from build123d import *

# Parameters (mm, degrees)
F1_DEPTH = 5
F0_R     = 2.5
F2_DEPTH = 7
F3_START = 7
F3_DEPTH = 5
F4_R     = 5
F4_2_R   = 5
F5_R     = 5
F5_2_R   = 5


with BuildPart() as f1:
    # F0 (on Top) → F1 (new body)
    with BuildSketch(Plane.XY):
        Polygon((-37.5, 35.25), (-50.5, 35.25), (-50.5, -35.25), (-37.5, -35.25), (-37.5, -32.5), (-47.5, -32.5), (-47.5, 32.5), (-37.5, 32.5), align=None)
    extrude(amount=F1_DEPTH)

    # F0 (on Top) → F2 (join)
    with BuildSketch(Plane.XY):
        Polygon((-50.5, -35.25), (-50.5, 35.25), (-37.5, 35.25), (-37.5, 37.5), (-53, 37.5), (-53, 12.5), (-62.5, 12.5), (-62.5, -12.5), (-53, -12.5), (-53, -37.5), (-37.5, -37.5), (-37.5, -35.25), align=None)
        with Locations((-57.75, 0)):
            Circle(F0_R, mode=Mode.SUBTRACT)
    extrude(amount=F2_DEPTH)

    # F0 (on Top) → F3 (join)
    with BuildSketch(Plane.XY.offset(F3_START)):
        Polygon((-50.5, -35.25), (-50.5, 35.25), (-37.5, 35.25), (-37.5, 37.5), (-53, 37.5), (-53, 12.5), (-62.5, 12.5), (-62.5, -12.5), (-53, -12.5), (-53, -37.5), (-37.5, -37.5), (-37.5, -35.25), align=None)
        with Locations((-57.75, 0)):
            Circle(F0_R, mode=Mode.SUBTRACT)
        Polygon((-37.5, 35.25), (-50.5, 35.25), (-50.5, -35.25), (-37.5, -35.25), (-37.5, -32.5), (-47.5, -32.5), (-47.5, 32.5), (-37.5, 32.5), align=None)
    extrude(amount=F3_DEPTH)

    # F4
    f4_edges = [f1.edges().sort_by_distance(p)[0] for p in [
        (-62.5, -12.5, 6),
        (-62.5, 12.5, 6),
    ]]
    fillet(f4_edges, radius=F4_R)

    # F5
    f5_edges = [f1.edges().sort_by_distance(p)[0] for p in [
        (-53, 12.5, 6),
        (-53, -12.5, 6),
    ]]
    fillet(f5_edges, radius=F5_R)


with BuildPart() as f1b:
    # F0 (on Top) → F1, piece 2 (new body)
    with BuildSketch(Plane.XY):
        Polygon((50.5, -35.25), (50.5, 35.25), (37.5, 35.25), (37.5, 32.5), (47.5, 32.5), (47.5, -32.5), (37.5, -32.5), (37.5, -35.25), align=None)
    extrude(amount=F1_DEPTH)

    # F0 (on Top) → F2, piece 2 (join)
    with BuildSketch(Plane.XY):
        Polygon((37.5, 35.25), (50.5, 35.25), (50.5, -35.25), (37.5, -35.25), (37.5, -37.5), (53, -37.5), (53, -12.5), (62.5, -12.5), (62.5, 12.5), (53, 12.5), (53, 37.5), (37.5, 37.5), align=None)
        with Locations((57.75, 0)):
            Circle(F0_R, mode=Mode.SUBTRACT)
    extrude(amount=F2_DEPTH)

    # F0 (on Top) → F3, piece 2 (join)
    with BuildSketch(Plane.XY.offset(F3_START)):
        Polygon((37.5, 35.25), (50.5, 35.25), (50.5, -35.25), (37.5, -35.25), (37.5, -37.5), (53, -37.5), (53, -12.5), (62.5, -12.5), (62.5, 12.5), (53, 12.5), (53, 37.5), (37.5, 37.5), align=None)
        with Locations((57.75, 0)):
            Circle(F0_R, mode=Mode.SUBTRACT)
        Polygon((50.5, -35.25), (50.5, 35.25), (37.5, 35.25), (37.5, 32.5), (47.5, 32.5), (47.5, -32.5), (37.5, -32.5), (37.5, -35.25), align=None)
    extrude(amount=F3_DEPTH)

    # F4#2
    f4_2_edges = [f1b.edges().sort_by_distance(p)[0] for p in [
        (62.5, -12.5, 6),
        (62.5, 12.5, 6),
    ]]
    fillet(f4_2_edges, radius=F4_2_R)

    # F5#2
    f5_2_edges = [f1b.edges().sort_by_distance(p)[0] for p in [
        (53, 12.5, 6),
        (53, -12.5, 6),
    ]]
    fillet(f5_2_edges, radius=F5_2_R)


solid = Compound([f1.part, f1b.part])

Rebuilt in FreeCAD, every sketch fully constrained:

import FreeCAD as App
import Part
import Sketcher

V = App.Vector
Q = App.Units.Quantity


def edges_at(feature, points):
    """Names of the edges that pass closest to the given points."""
    edges = feature.Shape.Edges
    near = lambda p: min(range(len(edges)), key=lambda i: edges[i].distToShape(Part.Vertex(*p))[0])
    return sorted({f"Edge{near(p) + 1}" for p in points})


def add_polygon(sketch, points):
    """Adds a closed chain of lines whose ends are joined by coincident constraints."""
    first, n = sketch.GeometryCount, len(points)
    for a, b in zip(points, points[1:] + points[:1]):
        sketch.addGeometry(Part.LineSegment(App.Vector(*a, 0), App.Vector(*b, 0)), False)
    for i in range(n):
        sketch.addConstraint(Sketcher.Constraint("Coincident", first + i, 2, first + (i + 1) % n, 1))

doc = App.newDocument("Part")
body = doc.addObject("PartDesign::Body", "Body")

# Sketch on XY plane
sketch1 = body.newObject("Sketcher::SketchObject", "Sketch")
sketch1.AttachmentSupport = (doc.getObject("XY_Plane"), [""])
sketch1.MapMode = "FlatFace"
add_polygon(sketch1, [(-37.5, 35.2), (-50.5, 35.2), (-50.5, -35.2), (-37.5, -35.2), (-37.5, -32.5), (-47.5, -32.5), (-47.5, 32.5), (-37.5, 32.5)])  # lines 0-7
sketch1.addConstraint(Sketcher.Constraint("Horizontal", 0))
sketch1.addConstraint(Sketcher.Constraint("Vertical", 1))
sketch1.addConstraint(Sketcher.Constraint("Horizontal", 2))
sketch1.addConstraint(Sketcher.Constraint("Vertical", 3))
sketch1.addConstraint(Sketcher.Constraint("Horizontal", 4))
sketch1.addConstraint(Sketcher.Constraint("Vertical", 5))
sketch1.addConstraint(Sketcher.Constraint("Horizontal", 6))
sketch1.addConstraint(Sketcher.Constraint("Vertical", 7))
sketch1.addConstraint(Sketcher.Constraint("Symmetric", 3, 2, 6, 2, -1))
sketch1.addConstraint(Sketcher.Constraint("Equal", 3, 7))
sketch1.addConstraint(Sketcher.Constraint("DistanceX", 0, 2, 0, 1, Q("13 mm")))
sketch1.addConstraint(Sketcher.Constraint("DistanceX", 4, 2, 4, 1, Q("10 mm")))
sketch1.addConstraint(Sketcher.Constraint("DistanceY", 5, 1, 5, 2, Q("65 mm")))
sketch1.addConstraint(Sketcher.Constraint("DistanceY", 1, 2, 1, 1, Q("70.5 mm")))
sketch1.addConstraint(Sketcher.Constraint("DistanceX", 0, 2, -1, 1, Q("50.5 mm")))
pad1 = body.newObject("PartDesign::Pad", "Pad")
pad1.Profile = sketch1
pad1.Length = 5

# Sketch on XY plane
sketch2 = body.newObject("Sketcher::SketchObject", "Sketch001")
sketch2.AttachmentSupport = (doc.getObject("XY_Plane"), [""])
sketch2.MapMode = "FlatFace"
add_polygon(sketch2, [(-50.5, -35.2), (-50.5, 35.2), (-37.5, 35.2), (-37.5, 37.5), (-53, 37.5), (-53, 12.5), (-62.5, 12.5), (-62.5, -12.5), (-53, -12.5), (-53, -37.5), (-37.5, -37.5), (-37.5, -35.2)])  # lines 0-11
sketch2.addGeometry(Part.Circle(V(-57.8, 0, 0), V(0, 0, 1), 2.5), False)  # 12
sketch2.addConstraint(Sketcher.Constraint("Vertical", 0))
sketch2.addConstraint(Sketcher.Constraint("Horizontal", 1))
sketch2.addConstraint(Sketcher.Constraint("Vertical", 2))
sketch2.addConstraint(Sketcher.Constraint("Horizontal", 3))
sketch2.addConstraint(Sketcher.Constraint("Vertical", 4))
sketch2.addConstraint(Sketcher.Constraint("Horizontal", 5))
sketch2.addConstraint(Sketcher.Constraint("Vertical", 6))
sketch2.addConstraint(Sketcher.Constraint("Horizontal", 7))
sketch2.addConstraint(Sketcher.Constraint("Vertical", 8))
sketch2.addConstraint(Sketcher.Constraint("Horizontal", 9))
sketch2.addConstraint(Sketcher.Constraint("Vertical", 10))
sketch2.addConstraint(Sketcher.Constraint("Horizontal", 11))
sketch2.addConstraint(Sketcher.Constraint("Symmetric", 4, 2, 7, 2, -1))
sketch2.addConstraint(Sketcher.Constraint("Symmetric", 2, 2, 9, 2, -1))
sketch2.addConstraint(Sketcher.Constraint("PointOnObject", 12, 3, -1))
sketch2.addConstraint(Sketcher.Constraint("Equal", 4, 6))
sketch2.addConstraint(Sketcher.Constraint("Equal", 2, 10))
sketch2.addConstraint(Sketcher.Constraint("Diameter", 12, Q("5 mm")))
sketch2.addConstraint(Sketcher.Constraint("DistanceX", 1, 1, 1, 2, Q("13 mm")))
sketch2.addConstraint(Sketcher.Constraint("DistanceY", 4, 2, 4, 1, Q("25 mm")))
sketch2.addConstraint(Sketcher.Constraint("DistanceX", 3, 2, 3, 1, Q("15.5 mm")))
sketch2.addConstraint(Sketcher.Constraint("DistanceX", 5, 2, 5, 1, Q("9.5 mm")))
sketch2.addConstraint(Sketcher.Constraint("DistanceY", 0, 1, 0, 2, Q("70.5 mm")))
sketch2.addConstraint(Sketcher.Constraint("DistanceX", 3, 2, -1, 1, Q("53 mm")))
sketch2.addConstraint(Sketcher.Constraint("DistanceX", 12, 3, -1, 1, Q("57.75 mm")))
pad2 = body.newObject("PartDesign::Pad", "Pad001")
pad2.Profile = sketch2
pad2.Length = 7

# Sketch on XY plane
sketch3 = body.newObject("Sketcher::SketchObject", "Sketch002")
sketch3.AttachmentSupport = (doc.getObject("XY_Plane"), [""])
sketch3.MapMode = "FlatFace"
sketch3.AttachmentOffset = App.Placement(V(0, 0, 7), App.Rotation())
add_polygon(sketch3, [(-37.5, -37.5), (-37.5, -32.5), (-47.5, -32.5), (-47.5, 32.5), (-37.5, 32.5), (-37.5, 37.5), (-53, 37.5), (-53, 12.5), (-62.5, 12.5), (-62.5, -12.5), (-53, -12.5), (-53, -37.5)])  # lines 0-11
sketch3.addGeometry(Part.Circle(V(-57.8, 0, 0), V(0, 0, 1), 2.5), False)  # 12
sketch3.addConstraint(Sketcher.Constraint("Vertical", 0))
sketch3.addConstraint(Sketcher.Constraint("Horizontal", 1))
sketch3.addConstraint(Sketcher.Constraint("Vertical", 2))
sketch3.addConstraint(Sketcher.Constraint("Horizontal", 3))
sketch3.addConstraint(Sketcher.Constraint("Vertical", 4))
sketch3.addConstraint(Sketcher.Constraint("Horizontal", 5))
sketch3.addConstraint(Sketcher.Constraint("Vertical", 6))
sketch3.addConstraint(Sketcher.Constraint("Horizontal", 7))
sketch3.addConstraint(Sketcher.Constraint("Vertical", 8))
sketch3.addConstraint(Sketcher.Constraint("Horizontal", 9))
sketch3.addConstraint(Sketcher.Constraint("Vertical", 10))
sketch3.addConstraint(Sketcher.Constraint("Horizontal", 11))
sketch3.addConstraint(Sketcher.Constraint("Symmetric", 0, 2, 3, 2, -1))
sketch3.addConstraint(Sketcher.Constraint("Symmetric", 6, 2, 9, 2, -1))
sketch3.addConstraint(Sketcher.Constraint("PointOnObject", 12, 3, -1))
sketch3.addConstraint(Sketcher.Constraint("Equal", 0, 4))
sketch3.addConstraint(Sketcher.Constraint("Equal", 6, 8))
sketch3.addConstraint(Sketcher.Constraint("Diameter", 12, Q("5 mm")))
sketch3.addConstraint(Sketcher.Constraint("DistanceX", 1, 2, 1, 1, Q("10 mm")))
sketch3.addConstraint(Sketcher.Constraint("DistanceY", 0, 1, 0, 2, Q("5 mm")))
sketch3.addConstraint(Sketcher.Constraint("DistanceY", 2, 1, 2, 2, Q("65 mm")))
sketch3.addConstraint(Sketcher.Constraint("DistanceX", 5, 2, 5, 1, Q("15.5 mm")))
sketch3.addConstraint(Sketcher.Constraint("DistanceX", 7, 2, 7, 1, Q("9.5 mm")))
sketch3.addConstraint(Sketcher.Constraint("DistanceX", 5, 2, -1, 1, Q("53 mm")))
sketch3.addConstraint(Sketcher.Constraint("DistanceX", 12, 3, -1, 1, Q("57.75 mm")))
pad3 = body.newObject("PartDesign::Pad", "Pad002")
pad3.Profile = sketch3
pad3.Length = 5
doc.recompute()

fillet = body.newObject("PartDesign::Fillet", "Fillet")
fillet.Base = (pad3, edges_at(pad3, [(-62.5, -12.5, 6), (-62.5, 12.5, 6)]))
fillet.Radius = 5
doc.recompute()

fillet2 = body.newObject("PartDesign::Fillet", "Fillet001")
fillet2.Base = (fillet, edges_at(fillet, [(-53, 12.5, 6), (-53, -12.5, 6)]))
fillet2.Radius = 5
body2 = doc.addObject("PartDesign::Body", "Body001")

# Sketch on XY plane
sketch4 = body2.newObject("Sketcher::SketchObject", "Sketch003")
sketch4.AttachmentSupport = (doc.getObject("XY_Plane001"), [""])
sketch4.MapMode = "FlatFace"
add_polygon(sketch4, [(50.5, -35.2), (50.5, 35.2), (37.5, 35.2), (37.5, 32.5), (47.5, 32.5), (47.5, -32.5), (37.5, -32.5), (37.5, -35.2)])  # lines 0-7
sketch4.addConstraint(Sketcher.Constraint("Vertical", 0))
sketch4.addConstraint(Sketcher.Constraint("Horizontal", 1))
sketch4.addConstraint(Sketcher.Constraint("Vertical", 2))
sketch4.addConstraint(Sketcher.Constraint("Horizontal", 3))
sketch4.addConstraint(Sketcher.Constraint("Vertical", 4))
sketch4.addConstraint(Sketcher.Constraint("Horizontal", 5))
sketch4.addConstraint(Sketcher.Constraint("Vertical", 6))
sketch4.addConstraint(Sketcher.Constraint("Horizontal", 7))
sketch4.addConstraint(Sketcher.Constraint("Symmetric", 2, 2, 5, 2, -1))
sketch4.addConstraint(Sketcher.Constraint("Equal", 2, 6))
sketch4.addConstraint(Sketcher.Constraint("DistanceX", 1, 2, 1, 1, Q("13 mm")))
sketch4.addConstraint(Sketcher.Constraint("DistanceX", 3, 1, 3, 2, Q("10 mm")))
sketch4.addConstraint(Sketcher.Constraint("DistanceY", 4, 2, 4, 1, Q("65 mm")))
sketch4.addConstraint(Sketcher.Constraint("DistanceY", 0, 1, 0, 2, Q("70.5 mm")))
sketch4.addConstraint(Sketcher.Constraint("DistanceX", -1, 1, 0, 2, Q("50.5 mm")))
pad4 = body2.newObject("PartDesign::Pad", "Pad003")
pad4.Profile = sketch4
pad4.Length = 5

# Sketch on XY plane
sketch5 = body2.newObject("Sketcher::SketchObject", "Sketch004")
sketch5.AttachmentSupport = (doc.getObject("XY_Plane001"), [""])
sketch5.MapMode = "FlatFace"
add_polygon(sketch5, [(37.5, 35.2), (50.5, 35.2), (50.5, -35.2), (37.5, -35.2), (37.5, -37.5), (53, -37.5), (53, -12.5), (62.5, -12.5), (62.5, 12.5), (53, 12.5), (53, 37.5), (37.5, 37.5)])  # lines 0-11
sketch5.addGeometry(Part.Circle(V(57.8, 0, 0), V(0, 0, 1), 2.5), False)  # 12
sketch5.addConstraint(Sketcher.Constraint("Horizontal", 0))
sketch5.addConstraint(Sketcher.Constraint("Vertical", 1))
sketch5.addConstraint(Sketcher.Constraint("Horizontal", 2))
sketch5.addConstraint(Sketcher.Constraint("Vertical", 3))
sketch5.addConstraint(Sketcher.Constraint("Horizontal", 4))
sketch5.addConstraint(Sketcher.Constraint("Vertical", 5))
sketch5.addConstraint(Sketcher.Constraint("Horizontal", 6))
sketch5.addConstraint(Sketcher.Constraint("Vertical", 7))
sketch5.addConstraint(Sketcher.Constraint("Horizontal", 8))
sketch5.addConstraint(Sketcher.Constraint("Vertical", 9))
sketch5.addConstraint(Sketcher.Constraint("Horizontal", 10))
sketch5.addConstraint(Sketcher.Constraint("Vertical", 11))
sketch5.addConstraint(Sketcher.Constraint("Symmetric", 5, 2, 8, 2, -1))
sketch5.addConstraint(Sketcher.Constraint("Symmetric", 3, 2, 10, 2, -1))
sketch5.addConstraint(Sketcher.Constraint("PointOnObject", 12, 3, -1))
sketch5.addConstraint(Sketcher.Constraint("Equal", 5, 7))
sketch5.addConstraint(Sketcher.Constraint("Equal", 3, 11))
sketch5.addConstraint(Sketcher.Constraint("Diameter", 12, Q("5 mm")))
sketch5.addConstraint(Sketcher.Constraint("DistanceX", 0, 1, 0, 2, Q("13 mm")))
sketch5.addConstraint(Sketcher.Constraint("DistanceY", 5, 1, 5, 2, Q("25 mm")))
sketch5.addConstraint(Sketcher.Constraint("DistanceX", 4, 1, 4, 2, Q("15.5 mm")))
sketch5.addConstraint(Sketcher.Constraint("DistanceX", 6, 1, 6, 2, Q("9.5 mm")))
sketch5.addConstraint(Sketcher.Constraint("DistanceY", 1, 2, 1, 1, Q("70.5 mm")))
sketch5.addConstraint(Sketcher.Constraint("DistanceX", -1, 1, 4, 2, Q("53 mm")))
sketch5.addConstraint(Sketcher.Constraint("DistanceX", -1, 1, 12, 3, Q("57.75 mm")))
pad5 = body2.newObject("PartDesign::Pad", "Pad004")
pad5.Profile = sketch5
pad5.Length = 7

# Sketch on XY plane
sketch6 = body2.newObject("Sketcher::SketchObject", "Sketch005")
sketch6.AttachmentSupport = (doc.getObject("XY_Plane001"), [""])
sketch6.MapMode = "FlatFace"
sketch6.AttachmentOffset = App.Placement(V(0, 0, 7), App.Rotation())
add_polygon(sketch6, [(37.5, 37.5), (37.5, 32.5), (47.5, 32.5), (47.5, -32.5), (37.5, -32.5), (37.5, -37.5), (53, -37.5), (53, -12.5), (62.5, -12.5), (62.5, 12.5), (53, 12.5), (53, 37.5)])  # lines 0-11
sketch6.addGeometry(Part.Circle(V(57.8, 0, 0), V(0, 0, 1), 2.5), False)  # 12
sketch6.addConstraint(Sketcher.Constraint("Vertical", 0))
sketch6.addConstraint(Sketcher.Constraint("Horizontal", 1))
sketch6.addConstraint(Sketcher.Constraint("Vertical", 2))
sketch6.addConstraint(Sketcher.Constraint("Horizontal", 3))
sketch6.addConstraint(Sketcher.Constraint("Vertical", 4))
sketch6.addConstraint(Sketcher.Constraint("Horizontal", 5))
sketch6.addConstraint(Sketcher.Constraint("Vertical", 6))
sketch6.addConstraint(Sketcher.Constraint("Horizontal", 7))
sketch6.addConstraint(Sketcher.Constraint("Vertical", 8))
sketch6.addConstraint(Sketcher.Constraint("Horizontal", 9))
sketch6.addConstraint(Sketcher.Constraint("Vertical", 10))
sketch6.addConstraint(Sketcher.Constraint("Horizontal", 11))
sketch6.addConstraint(Sketcher.Constraint("Symmetric", 0, 2, 3, 2, -1))
sketch6.addConstraint(Sketcher.Constraint("Symmetric", 6, 2, 9, 2, -1))
sketch6.addConstraint(Sketcher.Constraint("PointOnObject", 12, 3, -1))
sketch6.addConstraint(Sketcher.Constraint("Equal", 0, 4))
sketch6.addConstraint(Sketcher.Constraint("Equal", 6, 8))
sketch6.addConstraint(Sketcher.Constraint("Diameter", 12, Q("5 mm")))
sketch6.addConstraint(Sketcher.Constraint("DistanceX", 1, 1, 1, 2, Q("10 mm")))
sketch6.addConstraint(Sketcher.Constraint("DistanceY", 0, 2, 0, 1, Q("5 mm")))
sketch6.addConstraint(Sketcher.Constraint("DistanceY", 2, 2, 2, 1, Q("65 mm")))
sketch6.addConstraint(Sketcher.Constraint("DistanceX", 5, 1, 5, 2, Q("15.5 mm")))
sketch6.addConstraint(Sketcher.Constraint("DistanceX", 7, 1, 7, 2, Q("9.5 mm")))
sketch6.addConstraint(Sketcher.Constraint("DistanceX", -1, 1, 5, 2, Q("53 mm")))
sketch6.addConstraint(Sketcher.Constraint("DistanceX", -1, 1, 12, 3, Q("57.75 mm")))
pad6 = body2.newObject("PartDesign::Pad", "Pad005")
pad6.Profile = sketch6
pad6.Length = 5
doc.recompute()

fillet3 = body2.newObject("PartDesign::Fillet", "Fillet002")
fillet3.Base = (pad6, edges_at(pad6, [(62.5, -12.5, 6), (62.5, 12.5, 6)]))
fillet3.Radius = 5
doc.recompute()

fillet4 = body2.newObject("PartDesign::Fillet", "Fillet003")
fillet4.Base = (fillet3, edges_at(fillet3, [(53, 12.5, 6), (53, -12.5, 6)]))
fillet4.Radius = 5

doc.recompute()
